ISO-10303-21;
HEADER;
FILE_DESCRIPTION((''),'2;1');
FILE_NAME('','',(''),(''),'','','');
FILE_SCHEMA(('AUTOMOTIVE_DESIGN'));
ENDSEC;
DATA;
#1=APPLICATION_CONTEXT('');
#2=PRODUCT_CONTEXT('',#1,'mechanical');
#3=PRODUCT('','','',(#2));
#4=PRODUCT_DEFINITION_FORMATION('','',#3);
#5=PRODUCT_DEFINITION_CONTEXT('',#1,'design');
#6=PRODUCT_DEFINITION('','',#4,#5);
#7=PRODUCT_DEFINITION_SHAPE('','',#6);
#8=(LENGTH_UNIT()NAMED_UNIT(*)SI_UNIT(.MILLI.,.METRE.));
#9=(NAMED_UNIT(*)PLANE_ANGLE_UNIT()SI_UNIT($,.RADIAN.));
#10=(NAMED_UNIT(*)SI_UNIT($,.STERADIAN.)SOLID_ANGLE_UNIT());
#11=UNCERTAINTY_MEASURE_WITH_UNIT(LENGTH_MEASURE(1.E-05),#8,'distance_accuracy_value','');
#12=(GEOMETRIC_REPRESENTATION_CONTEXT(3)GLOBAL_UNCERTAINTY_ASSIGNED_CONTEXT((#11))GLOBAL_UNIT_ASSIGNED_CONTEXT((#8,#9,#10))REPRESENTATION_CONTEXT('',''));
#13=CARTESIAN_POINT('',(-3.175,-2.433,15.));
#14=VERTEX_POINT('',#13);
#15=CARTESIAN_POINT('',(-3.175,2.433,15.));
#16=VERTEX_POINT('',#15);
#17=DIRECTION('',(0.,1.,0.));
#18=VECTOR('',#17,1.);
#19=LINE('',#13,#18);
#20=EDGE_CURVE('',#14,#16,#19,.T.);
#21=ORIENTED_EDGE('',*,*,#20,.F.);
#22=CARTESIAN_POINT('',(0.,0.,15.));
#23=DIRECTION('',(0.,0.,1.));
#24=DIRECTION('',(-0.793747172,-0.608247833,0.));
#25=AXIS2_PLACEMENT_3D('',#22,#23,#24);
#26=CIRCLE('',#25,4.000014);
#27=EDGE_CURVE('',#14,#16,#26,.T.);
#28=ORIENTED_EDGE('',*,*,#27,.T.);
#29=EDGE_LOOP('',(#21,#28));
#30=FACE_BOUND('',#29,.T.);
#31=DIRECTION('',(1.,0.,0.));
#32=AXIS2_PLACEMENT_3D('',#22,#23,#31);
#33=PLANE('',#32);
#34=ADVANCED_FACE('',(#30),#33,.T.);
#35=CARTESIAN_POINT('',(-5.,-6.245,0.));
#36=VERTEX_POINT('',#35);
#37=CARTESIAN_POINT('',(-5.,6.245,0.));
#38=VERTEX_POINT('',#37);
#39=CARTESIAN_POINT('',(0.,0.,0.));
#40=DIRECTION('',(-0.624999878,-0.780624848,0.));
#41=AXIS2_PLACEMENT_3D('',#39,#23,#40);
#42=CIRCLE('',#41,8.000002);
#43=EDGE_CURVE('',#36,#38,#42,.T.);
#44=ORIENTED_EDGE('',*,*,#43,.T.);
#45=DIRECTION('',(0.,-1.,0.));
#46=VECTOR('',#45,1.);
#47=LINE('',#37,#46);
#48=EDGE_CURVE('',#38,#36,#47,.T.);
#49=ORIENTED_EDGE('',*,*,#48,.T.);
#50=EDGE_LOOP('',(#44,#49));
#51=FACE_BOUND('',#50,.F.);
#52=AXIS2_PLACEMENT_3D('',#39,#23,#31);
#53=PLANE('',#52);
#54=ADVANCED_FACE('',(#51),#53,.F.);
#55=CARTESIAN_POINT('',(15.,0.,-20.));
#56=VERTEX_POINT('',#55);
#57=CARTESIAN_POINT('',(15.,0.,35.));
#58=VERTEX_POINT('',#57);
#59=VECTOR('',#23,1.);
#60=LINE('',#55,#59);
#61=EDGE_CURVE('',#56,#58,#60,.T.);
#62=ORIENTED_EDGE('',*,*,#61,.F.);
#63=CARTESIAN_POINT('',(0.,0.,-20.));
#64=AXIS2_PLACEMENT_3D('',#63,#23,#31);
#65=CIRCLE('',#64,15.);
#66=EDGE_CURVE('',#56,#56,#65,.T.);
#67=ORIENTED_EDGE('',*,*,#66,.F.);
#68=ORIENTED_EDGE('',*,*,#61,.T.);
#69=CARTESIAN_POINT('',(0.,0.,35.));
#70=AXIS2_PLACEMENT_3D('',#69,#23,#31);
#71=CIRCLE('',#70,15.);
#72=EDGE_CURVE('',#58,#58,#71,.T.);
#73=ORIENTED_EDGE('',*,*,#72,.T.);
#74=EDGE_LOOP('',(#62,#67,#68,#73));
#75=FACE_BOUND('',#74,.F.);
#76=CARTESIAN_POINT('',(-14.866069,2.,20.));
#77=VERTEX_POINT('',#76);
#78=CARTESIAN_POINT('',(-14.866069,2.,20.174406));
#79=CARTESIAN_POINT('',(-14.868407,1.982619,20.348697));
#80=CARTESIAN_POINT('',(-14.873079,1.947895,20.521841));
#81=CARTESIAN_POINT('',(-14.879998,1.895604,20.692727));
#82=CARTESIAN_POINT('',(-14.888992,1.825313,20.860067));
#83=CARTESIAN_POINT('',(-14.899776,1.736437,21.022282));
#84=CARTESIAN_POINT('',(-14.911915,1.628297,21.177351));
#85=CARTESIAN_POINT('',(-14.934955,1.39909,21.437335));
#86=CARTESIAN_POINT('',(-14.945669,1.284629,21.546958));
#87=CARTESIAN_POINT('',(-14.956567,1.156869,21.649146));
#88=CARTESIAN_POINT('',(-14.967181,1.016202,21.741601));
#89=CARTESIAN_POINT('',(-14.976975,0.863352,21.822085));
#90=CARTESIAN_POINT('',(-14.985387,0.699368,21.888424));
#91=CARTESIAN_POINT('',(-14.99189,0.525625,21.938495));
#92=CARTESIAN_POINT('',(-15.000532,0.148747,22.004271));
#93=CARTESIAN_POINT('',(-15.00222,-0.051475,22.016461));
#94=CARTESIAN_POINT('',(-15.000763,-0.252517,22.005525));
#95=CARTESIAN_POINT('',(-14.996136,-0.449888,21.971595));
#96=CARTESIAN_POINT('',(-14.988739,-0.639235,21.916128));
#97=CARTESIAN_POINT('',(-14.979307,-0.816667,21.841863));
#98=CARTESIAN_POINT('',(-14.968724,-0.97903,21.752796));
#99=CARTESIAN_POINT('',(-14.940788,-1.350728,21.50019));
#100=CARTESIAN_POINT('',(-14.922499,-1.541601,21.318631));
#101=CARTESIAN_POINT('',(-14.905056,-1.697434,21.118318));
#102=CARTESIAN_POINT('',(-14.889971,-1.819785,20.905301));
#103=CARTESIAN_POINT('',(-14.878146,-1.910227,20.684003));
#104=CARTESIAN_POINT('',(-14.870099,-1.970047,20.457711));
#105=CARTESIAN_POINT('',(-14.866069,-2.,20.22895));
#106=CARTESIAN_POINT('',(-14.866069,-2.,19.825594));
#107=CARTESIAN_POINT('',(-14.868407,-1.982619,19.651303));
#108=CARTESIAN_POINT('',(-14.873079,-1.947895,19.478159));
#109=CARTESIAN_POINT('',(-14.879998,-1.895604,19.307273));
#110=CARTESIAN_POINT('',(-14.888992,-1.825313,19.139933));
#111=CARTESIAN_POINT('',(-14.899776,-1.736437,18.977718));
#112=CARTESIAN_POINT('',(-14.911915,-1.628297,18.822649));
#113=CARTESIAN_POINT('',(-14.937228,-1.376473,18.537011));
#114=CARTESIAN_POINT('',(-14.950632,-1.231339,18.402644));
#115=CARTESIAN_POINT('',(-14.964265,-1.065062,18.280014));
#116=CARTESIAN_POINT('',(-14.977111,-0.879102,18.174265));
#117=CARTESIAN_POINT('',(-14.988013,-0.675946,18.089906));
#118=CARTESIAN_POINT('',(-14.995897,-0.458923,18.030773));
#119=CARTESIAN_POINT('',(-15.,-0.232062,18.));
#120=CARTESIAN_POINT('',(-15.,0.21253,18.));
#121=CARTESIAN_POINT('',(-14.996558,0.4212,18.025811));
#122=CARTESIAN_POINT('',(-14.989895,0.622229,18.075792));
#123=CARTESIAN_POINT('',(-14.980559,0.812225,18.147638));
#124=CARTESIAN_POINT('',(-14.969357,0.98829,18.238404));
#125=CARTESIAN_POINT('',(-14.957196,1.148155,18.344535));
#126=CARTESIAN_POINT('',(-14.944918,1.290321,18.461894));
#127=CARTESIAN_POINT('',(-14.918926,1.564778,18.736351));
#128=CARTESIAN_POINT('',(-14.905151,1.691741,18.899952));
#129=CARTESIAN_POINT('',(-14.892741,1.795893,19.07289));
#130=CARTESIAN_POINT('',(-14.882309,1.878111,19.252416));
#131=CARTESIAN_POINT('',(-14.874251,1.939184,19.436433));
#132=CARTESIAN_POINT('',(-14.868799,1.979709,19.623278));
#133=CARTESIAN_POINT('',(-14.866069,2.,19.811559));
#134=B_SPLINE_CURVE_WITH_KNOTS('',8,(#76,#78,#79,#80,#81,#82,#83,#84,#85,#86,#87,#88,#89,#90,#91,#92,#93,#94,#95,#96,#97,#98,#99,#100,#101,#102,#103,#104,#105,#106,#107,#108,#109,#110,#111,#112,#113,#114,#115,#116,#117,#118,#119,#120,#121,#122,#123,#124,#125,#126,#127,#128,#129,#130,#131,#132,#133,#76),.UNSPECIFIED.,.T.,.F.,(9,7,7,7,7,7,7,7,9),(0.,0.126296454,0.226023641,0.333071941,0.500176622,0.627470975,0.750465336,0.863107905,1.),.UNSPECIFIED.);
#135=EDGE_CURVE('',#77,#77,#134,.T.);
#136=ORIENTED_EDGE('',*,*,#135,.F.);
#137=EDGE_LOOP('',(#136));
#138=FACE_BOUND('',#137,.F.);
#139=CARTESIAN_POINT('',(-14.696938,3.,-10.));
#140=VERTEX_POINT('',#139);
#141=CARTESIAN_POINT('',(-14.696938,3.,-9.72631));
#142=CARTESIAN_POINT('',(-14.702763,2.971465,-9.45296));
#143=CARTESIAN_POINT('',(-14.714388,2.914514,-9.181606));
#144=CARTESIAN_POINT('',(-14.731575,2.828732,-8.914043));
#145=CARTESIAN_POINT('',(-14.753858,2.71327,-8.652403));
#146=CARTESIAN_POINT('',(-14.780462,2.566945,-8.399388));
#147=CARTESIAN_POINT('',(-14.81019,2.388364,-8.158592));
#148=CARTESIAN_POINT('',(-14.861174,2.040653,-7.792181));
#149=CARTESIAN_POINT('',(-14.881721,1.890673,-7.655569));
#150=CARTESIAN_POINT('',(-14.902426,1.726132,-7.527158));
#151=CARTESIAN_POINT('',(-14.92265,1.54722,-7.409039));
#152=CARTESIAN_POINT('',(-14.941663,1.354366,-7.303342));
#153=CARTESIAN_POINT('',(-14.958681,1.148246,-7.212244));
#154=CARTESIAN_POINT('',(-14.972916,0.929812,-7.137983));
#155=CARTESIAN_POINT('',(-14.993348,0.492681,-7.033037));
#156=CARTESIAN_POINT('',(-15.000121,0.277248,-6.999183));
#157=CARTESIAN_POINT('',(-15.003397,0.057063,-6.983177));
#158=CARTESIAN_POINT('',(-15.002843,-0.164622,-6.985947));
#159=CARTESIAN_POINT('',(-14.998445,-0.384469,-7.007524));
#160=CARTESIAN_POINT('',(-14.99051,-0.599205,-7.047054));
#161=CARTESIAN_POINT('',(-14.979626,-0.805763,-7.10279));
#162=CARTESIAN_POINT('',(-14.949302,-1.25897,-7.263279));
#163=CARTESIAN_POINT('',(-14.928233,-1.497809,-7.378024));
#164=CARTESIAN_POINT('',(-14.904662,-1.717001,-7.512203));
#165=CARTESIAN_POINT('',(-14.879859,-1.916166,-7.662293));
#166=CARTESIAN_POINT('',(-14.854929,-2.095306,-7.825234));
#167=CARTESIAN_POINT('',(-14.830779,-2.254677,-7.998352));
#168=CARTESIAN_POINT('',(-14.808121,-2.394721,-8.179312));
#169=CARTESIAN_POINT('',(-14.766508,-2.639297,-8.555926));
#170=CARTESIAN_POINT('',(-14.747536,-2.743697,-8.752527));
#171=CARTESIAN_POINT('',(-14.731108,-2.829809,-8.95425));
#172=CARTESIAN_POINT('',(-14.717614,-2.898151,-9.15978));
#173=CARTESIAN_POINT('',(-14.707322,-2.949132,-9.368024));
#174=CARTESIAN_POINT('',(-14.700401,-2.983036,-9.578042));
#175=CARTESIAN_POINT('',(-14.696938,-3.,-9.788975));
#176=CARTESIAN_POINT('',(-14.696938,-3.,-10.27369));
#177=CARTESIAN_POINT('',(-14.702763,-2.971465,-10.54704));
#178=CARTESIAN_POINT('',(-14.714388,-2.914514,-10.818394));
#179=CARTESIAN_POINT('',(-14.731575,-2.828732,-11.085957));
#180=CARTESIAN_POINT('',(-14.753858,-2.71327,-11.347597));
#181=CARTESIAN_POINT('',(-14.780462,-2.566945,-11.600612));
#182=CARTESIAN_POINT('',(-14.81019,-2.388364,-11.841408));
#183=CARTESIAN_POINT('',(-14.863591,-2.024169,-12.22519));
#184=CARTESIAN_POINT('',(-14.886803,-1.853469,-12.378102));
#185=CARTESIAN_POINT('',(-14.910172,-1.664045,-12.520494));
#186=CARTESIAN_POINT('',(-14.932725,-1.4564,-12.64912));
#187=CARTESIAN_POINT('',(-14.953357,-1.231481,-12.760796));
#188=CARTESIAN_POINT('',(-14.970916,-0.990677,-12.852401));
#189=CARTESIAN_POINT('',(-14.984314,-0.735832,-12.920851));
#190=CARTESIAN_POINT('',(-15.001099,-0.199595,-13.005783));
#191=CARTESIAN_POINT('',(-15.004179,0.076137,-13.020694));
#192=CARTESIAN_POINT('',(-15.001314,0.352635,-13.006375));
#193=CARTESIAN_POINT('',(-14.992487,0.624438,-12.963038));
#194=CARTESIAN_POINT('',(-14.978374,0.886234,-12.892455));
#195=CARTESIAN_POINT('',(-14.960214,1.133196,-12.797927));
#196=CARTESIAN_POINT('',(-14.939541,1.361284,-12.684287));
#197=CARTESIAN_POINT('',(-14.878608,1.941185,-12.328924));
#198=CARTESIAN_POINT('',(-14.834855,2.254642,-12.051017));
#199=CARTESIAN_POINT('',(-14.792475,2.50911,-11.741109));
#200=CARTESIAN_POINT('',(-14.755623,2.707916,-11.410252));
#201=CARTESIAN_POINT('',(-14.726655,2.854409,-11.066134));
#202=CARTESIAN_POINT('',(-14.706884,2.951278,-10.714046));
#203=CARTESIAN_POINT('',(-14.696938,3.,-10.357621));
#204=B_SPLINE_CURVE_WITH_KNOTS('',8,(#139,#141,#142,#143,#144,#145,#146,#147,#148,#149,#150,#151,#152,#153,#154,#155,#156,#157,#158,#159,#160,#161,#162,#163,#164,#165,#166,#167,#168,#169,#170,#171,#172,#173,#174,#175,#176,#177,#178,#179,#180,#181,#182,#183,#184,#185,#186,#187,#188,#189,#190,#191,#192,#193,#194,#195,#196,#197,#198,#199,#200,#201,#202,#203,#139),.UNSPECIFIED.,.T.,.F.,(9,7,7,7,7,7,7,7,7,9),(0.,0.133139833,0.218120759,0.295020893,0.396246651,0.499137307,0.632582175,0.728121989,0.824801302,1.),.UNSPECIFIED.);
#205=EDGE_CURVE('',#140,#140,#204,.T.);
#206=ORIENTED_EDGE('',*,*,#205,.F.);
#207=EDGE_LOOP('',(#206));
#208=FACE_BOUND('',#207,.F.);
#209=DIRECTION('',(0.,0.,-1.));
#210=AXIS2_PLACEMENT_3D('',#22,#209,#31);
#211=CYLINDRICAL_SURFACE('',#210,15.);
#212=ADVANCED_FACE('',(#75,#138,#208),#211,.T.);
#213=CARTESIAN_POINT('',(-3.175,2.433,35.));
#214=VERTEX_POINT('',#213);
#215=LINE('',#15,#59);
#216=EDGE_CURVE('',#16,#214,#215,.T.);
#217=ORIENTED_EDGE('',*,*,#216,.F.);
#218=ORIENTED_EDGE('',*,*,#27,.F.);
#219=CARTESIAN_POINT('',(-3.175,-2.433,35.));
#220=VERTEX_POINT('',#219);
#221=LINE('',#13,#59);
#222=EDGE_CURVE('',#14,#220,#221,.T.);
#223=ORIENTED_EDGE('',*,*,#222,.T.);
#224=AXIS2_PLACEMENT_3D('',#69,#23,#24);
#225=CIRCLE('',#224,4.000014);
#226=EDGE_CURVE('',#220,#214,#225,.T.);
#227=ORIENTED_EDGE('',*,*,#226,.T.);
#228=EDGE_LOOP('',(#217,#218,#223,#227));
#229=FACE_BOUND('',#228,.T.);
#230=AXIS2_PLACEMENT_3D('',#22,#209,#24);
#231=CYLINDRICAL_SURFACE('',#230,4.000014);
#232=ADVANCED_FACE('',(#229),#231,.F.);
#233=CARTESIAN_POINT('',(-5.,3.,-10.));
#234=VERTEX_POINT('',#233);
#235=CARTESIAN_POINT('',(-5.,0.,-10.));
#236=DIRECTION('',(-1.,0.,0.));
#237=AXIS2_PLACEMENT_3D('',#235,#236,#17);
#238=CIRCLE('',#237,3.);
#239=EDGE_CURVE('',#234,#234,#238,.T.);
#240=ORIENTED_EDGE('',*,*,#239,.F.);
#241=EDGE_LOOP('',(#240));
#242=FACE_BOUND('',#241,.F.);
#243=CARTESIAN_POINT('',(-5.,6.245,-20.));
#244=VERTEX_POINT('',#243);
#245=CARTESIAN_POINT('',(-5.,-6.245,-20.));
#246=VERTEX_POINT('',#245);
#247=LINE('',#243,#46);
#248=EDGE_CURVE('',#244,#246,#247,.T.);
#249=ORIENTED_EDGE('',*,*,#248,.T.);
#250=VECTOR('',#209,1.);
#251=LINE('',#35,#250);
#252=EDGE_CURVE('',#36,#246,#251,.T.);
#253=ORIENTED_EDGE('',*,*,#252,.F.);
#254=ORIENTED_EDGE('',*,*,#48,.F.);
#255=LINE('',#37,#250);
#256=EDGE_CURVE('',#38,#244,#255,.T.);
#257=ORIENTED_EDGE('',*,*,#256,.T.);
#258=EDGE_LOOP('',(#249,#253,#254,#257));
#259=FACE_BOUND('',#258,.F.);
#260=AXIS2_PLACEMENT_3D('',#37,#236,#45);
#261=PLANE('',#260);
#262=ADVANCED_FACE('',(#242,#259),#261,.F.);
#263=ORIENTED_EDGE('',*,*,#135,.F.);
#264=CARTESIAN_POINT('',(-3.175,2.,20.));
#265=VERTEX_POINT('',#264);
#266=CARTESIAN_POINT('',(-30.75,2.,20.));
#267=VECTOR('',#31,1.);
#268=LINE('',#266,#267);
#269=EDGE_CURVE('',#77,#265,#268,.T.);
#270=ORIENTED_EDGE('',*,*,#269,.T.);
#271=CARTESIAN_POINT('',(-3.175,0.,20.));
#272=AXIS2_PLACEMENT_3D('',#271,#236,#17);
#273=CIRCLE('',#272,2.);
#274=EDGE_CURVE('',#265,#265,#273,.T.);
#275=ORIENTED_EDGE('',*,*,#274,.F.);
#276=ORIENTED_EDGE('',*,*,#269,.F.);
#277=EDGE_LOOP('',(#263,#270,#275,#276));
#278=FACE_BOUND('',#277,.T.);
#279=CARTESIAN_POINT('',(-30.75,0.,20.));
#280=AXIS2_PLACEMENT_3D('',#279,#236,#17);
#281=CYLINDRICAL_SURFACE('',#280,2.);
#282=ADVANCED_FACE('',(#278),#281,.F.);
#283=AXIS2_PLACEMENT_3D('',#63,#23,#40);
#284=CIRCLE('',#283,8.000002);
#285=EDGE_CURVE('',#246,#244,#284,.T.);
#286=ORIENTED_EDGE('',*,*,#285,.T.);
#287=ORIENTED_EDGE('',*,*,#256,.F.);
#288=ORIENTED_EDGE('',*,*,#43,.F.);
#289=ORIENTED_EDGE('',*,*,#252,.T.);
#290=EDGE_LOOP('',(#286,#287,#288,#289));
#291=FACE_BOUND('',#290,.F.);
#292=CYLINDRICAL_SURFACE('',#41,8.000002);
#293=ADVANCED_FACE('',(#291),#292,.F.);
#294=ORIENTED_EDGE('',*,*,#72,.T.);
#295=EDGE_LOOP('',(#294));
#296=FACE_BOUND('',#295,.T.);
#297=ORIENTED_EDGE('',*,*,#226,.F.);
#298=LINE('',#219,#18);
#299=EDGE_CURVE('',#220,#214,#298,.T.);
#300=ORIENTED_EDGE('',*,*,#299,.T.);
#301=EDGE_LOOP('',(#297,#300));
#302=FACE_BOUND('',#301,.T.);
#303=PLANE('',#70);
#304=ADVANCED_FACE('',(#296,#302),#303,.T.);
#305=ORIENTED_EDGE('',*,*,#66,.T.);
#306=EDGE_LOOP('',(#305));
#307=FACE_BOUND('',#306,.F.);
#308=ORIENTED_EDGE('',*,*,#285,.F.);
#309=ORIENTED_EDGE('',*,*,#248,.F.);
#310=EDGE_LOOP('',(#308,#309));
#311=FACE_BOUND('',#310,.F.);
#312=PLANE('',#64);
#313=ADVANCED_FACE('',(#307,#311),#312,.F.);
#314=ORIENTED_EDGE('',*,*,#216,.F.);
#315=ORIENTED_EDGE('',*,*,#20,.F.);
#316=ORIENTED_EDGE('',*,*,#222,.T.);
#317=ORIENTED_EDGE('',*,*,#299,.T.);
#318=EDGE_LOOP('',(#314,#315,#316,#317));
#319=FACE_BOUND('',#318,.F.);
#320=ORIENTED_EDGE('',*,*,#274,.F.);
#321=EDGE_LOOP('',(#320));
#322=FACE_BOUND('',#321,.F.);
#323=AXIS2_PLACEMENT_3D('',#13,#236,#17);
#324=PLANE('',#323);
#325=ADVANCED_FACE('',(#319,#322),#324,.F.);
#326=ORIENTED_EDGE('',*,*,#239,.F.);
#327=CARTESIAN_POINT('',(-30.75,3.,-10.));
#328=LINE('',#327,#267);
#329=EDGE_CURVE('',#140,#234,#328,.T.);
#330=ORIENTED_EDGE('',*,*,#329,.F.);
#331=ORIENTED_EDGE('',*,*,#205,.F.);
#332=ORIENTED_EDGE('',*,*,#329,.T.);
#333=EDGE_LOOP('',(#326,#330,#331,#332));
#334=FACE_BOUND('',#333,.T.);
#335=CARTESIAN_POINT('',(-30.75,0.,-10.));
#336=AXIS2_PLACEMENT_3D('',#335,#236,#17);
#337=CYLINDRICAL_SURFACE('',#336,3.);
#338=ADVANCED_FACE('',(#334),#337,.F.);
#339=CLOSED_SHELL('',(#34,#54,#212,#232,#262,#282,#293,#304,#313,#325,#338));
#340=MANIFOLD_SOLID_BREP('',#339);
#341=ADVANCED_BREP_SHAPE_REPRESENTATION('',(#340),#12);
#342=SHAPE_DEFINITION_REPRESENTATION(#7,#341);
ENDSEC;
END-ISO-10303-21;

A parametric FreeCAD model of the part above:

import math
import FreeCAD as App
import Part
import Sketcher

V = App.Vector

doc = App.newDocument("Part")
params = doc.addObject("Spreadsheet::Sheet", "Params")
for row, (alias, value) in enumerate([
    ("sketch1_diameter", "30 mm"),
    ("sketch1_radius", "8 mm"),
    ("pad1_length", "20 mm"),
    ("sketch2_diameter", "30 mm"),
    ("pad2_length", "15 mm"),
    ("sketch3_diameter", "30 mm"),
    ("sketch3_radius", "4 mm"),
    ("pad3_length", "20 mm"),
    ("sketch4_diameter", "6 mm"),
    ("sketch4_diameter2", "4 mm"),
    ("pocket1_length", "30.75 mm"),
], start=1):
    params.set(f"A{row}", alias)
    params.set(f"B{row}", "=" + value)
    params.setAlias(f"B{row}", alias)

body = doc.addObject("PartDesign::Body", "Body")

sketch1 = body.newObject("Sketcher::SketchObject", "Sketch")
sketch1.AttachmentSupport = (doc.getObject("XY_Plane"), [""])
sketch1.MapMode = "FlatFace"
sketch1.addGeometry(Part.Circle(V(0, 0, 0), V(0, 0, 1), 15), False)
sketch1.addGeometry(Part.LineSegment(V(-5, -6, 0), V(-5, 6, 0)), False)
sketch1.addGeometry(Part.ArcOfCircle(Part.Circle(V(0, 0, 0), V(0, 0, 1), 8), math.radians(-129), math.radians(129)), False)
sketch1.addConstraint(Sketcher.Constraint("Coincident", 1, 1, 2, 1))
sketch1.addConstraint(Sketcher.Constraint("Coincident", 2, 2, 1, 2))
sketch1.addConstraint(Sketcher.Constraint("Vertical", 1))
sketch1.addConstraint(Sketcher.Constraint("Coincident", 0, 3, -1, 1))
sketch1.addConstraint(Sketcher.Constraint("Coincident", 2, 3, -1, 1))
sketch1.addConstraint(Sketcher.Constraint("Diameter", 0, 30.0))
sketch1.addConstraint(Sketcher.Constraint("Radius", 2, 8.0))
sketch1.addConstraint(Sketcher.Constraint("DistanceX", 1, 1, -1, 1, 5.0))
sketch1.setExpression("Constraints[5]", "Params.sketch1_diameter")
sketch1.setExpression("Constraints[6]", "Params.sketch1_radius")
pad1 = body.newObject("PartDesign::Pad", "Pad")
pad1.Profile = sketch1
pad1.setExpression("Length", "Params.pad1_length")
pad1.Reversed = True

sketch2 = body.newObject("Sketcher::SketchObject", "Sketch001")
sketch2.AttachmentSupport = (doc.getObject("XY_Plane"), [""])
sketch2.MapMode = "FlatFace"
sketch2.addGeometry(Part.Circle(V(0, 0, 0), V(0, 0, 1), 15), False)
sketch2.addConstraint(Sketcher.Constraint("Coincident", 0, 3, -1, 1))
sketch2.addConstraint(Sketcher.Constraint("Diameter", 0, 30.0))
sketch2.setExpression("Constraints[1]", "Params.sketch2_diameter")
pad2 = body.newObject("PartDesign::Pad", "Pad001")
pad2.Profile = sketch2
pad2.setExpression("Length", "Params.pad2_length")

sketch3 = body.newObject("Sketcher::SketchObject", "Sketch002")
sketch3.AttachmentSupport = (doc.getObject("XY_Plane"), [""])
sketch3.MapMode = "FlatFace"
sketch3.AttachmentOffset = App.Placement(V(0, 0, 15), App.Rotation())
sketch3.addGeometry(Part.Circle(V(0, 0, 0), V(0, 0, 1), 15), False)
sketch3.addGeometry(Part.ArcOfCircle(Part.Circle(V(0, 0, 0), V(0, 0, 1), 4), math.radians(-143), math.radians(143)), False)
sketch3.addGeometry(Part.LineSegment(V(-3.2, -2.4, 0), V(-3.2, 2.4, 0)), False)
sketch3.addConstraint(Sketcher.Constraint("Coincident", 1, 1, 2, 1))
sketch3.addConstraint(Sketcher.Constraint("Coincident", 2, 2, 1, 2))
sketch3.addConstraint(Sketcher.Constraint("Vertical", 2))
sketch3.addConstraint(Sketcher.Constraint("Coincident", 0, 3, -1, 1))
sketch3.addConstraint(Sketcher.Constraint("Coincident", 1, 3, -1, 1))
sketch3.addConstraint(Sketcher.Constraint("Diameter", 0, 30.0))
sketch3.addConstraint(Sketcher.Constraint("Radius", 1, 4.0))
sketch3.addConstraint(Sketcher.Constraint("DistanceY", 2, 1, 2, 2, 4.866))
sketch3.setExpression("Constraints[5]", "Params.sketch3_diameter")
sketch3.setExpression("Constraints[6]", "Params.sketch3_radius")
pad3 = body.newObject("PartDesign::Pad", "Pad002")
pad3.Profile = sketch3
pad3.setExpression("Length", "Params.pad3_length")

sketch4 = body.newObject("Sketcher::SketchObject", "Sketch003")
sketch4.AttachmentSupport = (doc.getObject("YZ_Plane"), [""])
sketch4.MapMode = "FlatFace"
sketch4.AttachmentOffset = App.Placement(V(0, 0, -30.75), App.Rotation())
sketch4.addGeometry(Part.Circle(V(0, -10, 0), V(0, 0, 1), 3), False)
sketch4.addGeometry(Part.Circle(V(0, 20, 0), V(0, 0, 1), 2), False)
sketch4.addConstraint(Sketcher.Constraint("PointOnObject", 0, 3, -2))
sketch4.addConstraint(Sketcher.Constraint("PointOnObject", 1, 3, -2))
sketch4.addConstraint(Sketcher.Constraint("Diameter", 0, 6.0))
sketch4.addConstraint(Sketcher.Constraint("Diameter", 1, 4.0))
sketch4.addConstraint(Sketcher.Constraint("DistanceY", 0, 3, -1, 1, 10.0))
sketch4.addConstraint(Sketcher.Constraint("DistanceY", -1, 1, 1, 3, 20.0))
sketch4.setExpression("Constraints[2]", "Params.sketch4_diameter")
sketch4.setExpression("Constraints[3]", "Params.sketch4_diameter2")
pocket1 = body.newObject("PartDesign::Pocket", "Pocket")
pocket1.Profile = sketch4
pocket1.setExpression("Length", "Params.pocket1_length")
pocket1.Reversed = True

doc.recompute()
